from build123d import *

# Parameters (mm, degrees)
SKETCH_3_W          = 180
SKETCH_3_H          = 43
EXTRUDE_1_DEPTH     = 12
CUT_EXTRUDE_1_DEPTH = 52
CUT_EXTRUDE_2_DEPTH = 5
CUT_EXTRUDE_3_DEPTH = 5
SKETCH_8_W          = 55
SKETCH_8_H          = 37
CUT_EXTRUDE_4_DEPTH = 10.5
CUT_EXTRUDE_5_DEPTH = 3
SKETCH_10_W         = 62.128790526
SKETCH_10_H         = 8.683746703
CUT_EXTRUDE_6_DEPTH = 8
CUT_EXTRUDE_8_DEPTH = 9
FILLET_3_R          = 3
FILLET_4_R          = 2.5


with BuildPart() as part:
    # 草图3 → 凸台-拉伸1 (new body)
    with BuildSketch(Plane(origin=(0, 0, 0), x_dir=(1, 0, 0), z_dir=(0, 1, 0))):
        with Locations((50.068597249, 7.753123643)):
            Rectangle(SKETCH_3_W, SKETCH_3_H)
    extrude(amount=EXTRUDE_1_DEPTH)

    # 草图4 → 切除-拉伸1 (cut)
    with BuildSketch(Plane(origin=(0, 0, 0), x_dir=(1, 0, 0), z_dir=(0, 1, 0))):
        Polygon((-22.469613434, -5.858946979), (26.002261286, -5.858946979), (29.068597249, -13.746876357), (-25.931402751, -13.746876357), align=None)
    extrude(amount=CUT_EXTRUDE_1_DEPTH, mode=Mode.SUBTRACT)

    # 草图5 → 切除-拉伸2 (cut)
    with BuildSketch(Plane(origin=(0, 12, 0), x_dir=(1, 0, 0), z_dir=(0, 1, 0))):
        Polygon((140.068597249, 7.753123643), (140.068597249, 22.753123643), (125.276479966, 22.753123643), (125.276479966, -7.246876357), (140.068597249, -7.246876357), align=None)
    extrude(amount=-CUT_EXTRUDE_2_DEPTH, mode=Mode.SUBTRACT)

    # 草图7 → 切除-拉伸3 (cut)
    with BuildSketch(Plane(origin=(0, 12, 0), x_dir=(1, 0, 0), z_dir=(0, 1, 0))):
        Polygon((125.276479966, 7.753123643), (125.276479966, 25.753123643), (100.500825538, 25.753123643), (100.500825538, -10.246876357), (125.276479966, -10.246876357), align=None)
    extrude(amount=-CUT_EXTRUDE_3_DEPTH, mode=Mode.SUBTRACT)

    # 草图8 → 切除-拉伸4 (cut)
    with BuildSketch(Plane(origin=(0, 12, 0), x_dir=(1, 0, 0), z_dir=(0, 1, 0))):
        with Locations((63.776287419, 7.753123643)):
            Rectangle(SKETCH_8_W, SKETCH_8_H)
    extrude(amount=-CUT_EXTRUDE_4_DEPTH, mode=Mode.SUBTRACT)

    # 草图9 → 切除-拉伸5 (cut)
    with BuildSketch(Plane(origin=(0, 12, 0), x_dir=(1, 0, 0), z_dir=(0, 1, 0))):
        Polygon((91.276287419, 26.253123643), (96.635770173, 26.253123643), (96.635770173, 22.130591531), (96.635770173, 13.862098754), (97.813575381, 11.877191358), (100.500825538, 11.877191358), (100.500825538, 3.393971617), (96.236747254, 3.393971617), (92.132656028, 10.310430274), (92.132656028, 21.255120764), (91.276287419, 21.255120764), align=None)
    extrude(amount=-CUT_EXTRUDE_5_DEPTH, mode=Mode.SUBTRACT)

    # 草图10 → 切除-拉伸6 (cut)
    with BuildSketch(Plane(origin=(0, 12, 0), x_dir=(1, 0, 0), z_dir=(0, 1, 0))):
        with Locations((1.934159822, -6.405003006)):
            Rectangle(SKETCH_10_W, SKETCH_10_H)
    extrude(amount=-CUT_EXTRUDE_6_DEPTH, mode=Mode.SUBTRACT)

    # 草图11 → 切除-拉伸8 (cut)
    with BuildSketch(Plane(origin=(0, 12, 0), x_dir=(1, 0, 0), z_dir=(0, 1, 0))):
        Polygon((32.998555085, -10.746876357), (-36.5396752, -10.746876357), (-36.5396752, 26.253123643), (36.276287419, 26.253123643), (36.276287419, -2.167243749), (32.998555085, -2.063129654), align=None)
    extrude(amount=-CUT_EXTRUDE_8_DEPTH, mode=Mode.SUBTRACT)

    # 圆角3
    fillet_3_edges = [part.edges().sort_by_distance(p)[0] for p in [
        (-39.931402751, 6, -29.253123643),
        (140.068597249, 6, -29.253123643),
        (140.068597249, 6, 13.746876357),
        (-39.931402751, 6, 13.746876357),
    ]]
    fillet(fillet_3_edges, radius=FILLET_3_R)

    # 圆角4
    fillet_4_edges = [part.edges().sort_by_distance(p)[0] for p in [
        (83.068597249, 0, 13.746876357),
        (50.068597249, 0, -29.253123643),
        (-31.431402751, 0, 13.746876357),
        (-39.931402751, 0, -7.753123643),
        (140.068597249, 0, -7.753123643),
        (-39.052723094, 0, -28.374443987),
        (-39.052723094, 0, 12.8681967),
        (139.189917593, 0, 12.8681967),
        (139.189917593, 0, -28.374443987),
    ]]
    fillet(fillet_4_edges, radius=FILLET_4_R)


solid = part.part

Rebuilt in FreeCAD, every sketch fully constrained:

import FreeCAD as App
import Part
import Sketcher

V = App.Vector


def edges_at(feature, points):
    """Names of the edges that pass closest to the given points."""
    edges = feature.Shape.Edges
    near = lambda p: min(range(len(edges)), key=lambda i: edges[i].distToShape(Part.Vertex(*p))[0])
    return sorted({f"Edge{near(p) + 1}" for p in points})


def add_polygon(sketch, points):
    """Adds a closed chain of lines whose ends are joined by coincident constraints."""
    first, n = sketch.GeometryCount, len(points)
    for a, b in zip(points, points[1:] + points[:1]):
        sketch.addGeometry(Part.LineSegment(App.Vector(*a, 0), App.Vector(*b, 0)), False)
    for i in range(n):
        sketch.addConstraint(Sketcher.Constraint("Coincident", first + i, 2, first + (i + 1) % n, 1))

doc = App.newDocument("Part")
body = doc.addObject("PartDesign::Body", "Body")

sketch1 = body.newObject("Sketcher::SketchObject", "Sketch")
sketch1.AttachmentSupport = (doc.getObject("XZ_Plane"), [""])
sketch1.MapMode = "FlatFace"
add_polygon(sketch1, [(-39.931403, -29.253124), (-39.931403, 13.746876), (140.068597, 13.746876), (140.068597, -29.253124)])
sketch1.addConstraint([
    Sketcher.Constraint("Vertical", 0),
    Sketcher.Constraint("Horizontal", 1),
    Sketcher.Constraint("Vertical", 2),
    Sketcher.Constraint("Horizontal", 3),
    Sketcher.Constraint("DistanceX", 1, 1, 1, 2, 180.0),
    Sketcher.Constraint("DistanceY", 0, 1, 0, 2, 43.0),
    Sketcher.Constraint("DistanceX", 0, 2, -1, 1, 39.931403),
    Sketcher.Constraint("DistanceY", -1, 1, 0, 2, 13.746876),
])
pad1 = body.newObject("PartDesign::Pad", "Pad")
pad1.Profile = sketch1
pad1.Length = 12
pad1.Reversed = True

sketch2 = body.newObject("Sketcher::SketchObject", "Sketch001")
sketch2.AttachmentSupport = (doc.getObject("XZ_Plane"), [""])
sketch2.MapMode = "FlatFace"
add_polygon(sketch2, [(26.002261, 5.858947), (-22.469613, 5.858947), (-25.931403, 13.746876), (29.068597, 13.746876)])
sketch2.addConstraint([
    Sketcher.Constraint("Horizontal", 0),
    Sketcher.Constraint("Horizontal", 2),
    Sketcher.Constraint("DistanceX", 2, 1, 2, 2, 55.0),
    Sketcher.Constraint("Distance", 1, 8.61414),
    Sketcher.Constraint("Distance", 3, 8.462969),
    Sketcher.Constraint("DistanceX", 0, 2, 0, 1, 48.471875),
    Sketcher.Constraint("DistanceX", -1, 1, 3, 2, 26.002261),
    Sketcher.Constraint("DistanceY", -1, 1, 0, 2, 5.858947),
])
pocket1 = body.newObject("PartDesign::Pocket", "Pocket")
pocket1.Profile = sketch2
pocket1.Length = 52

sketch3 = body.newObject("Sketcher::SketchObject", "Sketch002")
sketch3.AttachmentSupport = (doc.getObject("XZ_Plane"), [""])
sketch3.MapMode = "FlatFace"
sketch3.AttachmentOffset = App.Placement(V(0, 0, -12), App.Rotation())
add_polygon(sketch3, [(140.068597, -22.753124), (125.27648, -22.753124), (125.27648, 7.246876), (140.068597, 7.246876)])
sketch3.addConstraint([
    Sketcher.Constraint("Horizontal", 0),
    Sketcher.Constraint("Vertical", 1),
    Sketcher.Constraint("Horizontal", 2),
    Sketcher.Constraint("Vertical", 3),
    Sketcher.Constraint("DistanceY", 1, 1, 1, 2, 30.0),
    Sketcher.Constraint("DistanceX", 0, 2, 0, 1, 14.792117),
    Sketcher.Constraint("DistanceX", -1, 1, 0, 2, 125.27648),
    Sketcher.Constraint("DistanceY", 0, 2, -1, 1, 22.753124),
])
pocket2 = body.newObject("PartDesign::Pocket", "Pocket001")
pocket2.Profile = sketch3
pocket2.Length = 5
pocket2.Reversed = True

sketch4 = body.newObject("Sketcher::SketchObject", "Sketch003")
sketch4.AttachmentSupport = (doc.getObject("XZ_Plane"), [""])
sketch4.MapMode = "FlatFace"
sketch4.AttachmentOffset = App.Placement(V(0, 0, -12), App.Rotation())
add_polygon(sketch4, [(125.27648, -25.753124), (100.500826, -25.753124), (100.500826, 10.246876), (125.27648, 10.246876)])
sketch4.addConstraint([
    Sketcher.Constraint("Horizontal", 0),
    Sketcher.Constraint("Vertical", 1),
    Sketcher.Constraint("Horizontal", 2),
    Sketcher.Constraint("Vertical", 3),
    Sketcher.Constraint("DistanceY", 1, 1, 1, 2, 36.0),
    Sketcher.Constraint("DistanceX", 0, 2, 0, 1, 24.775654),
    Sketcher.Constraint("DistanceX", -1, 1, 2, 2, 125.27648),
    Sketcher.Constraint("DistanceY", 0, 2, -1, 1, 25.753124),
])
pocket3 = body.newObject("PartDesign::Pocket", "Pocket002")
pocket3.Profile = sketch4
pocket3.Length = 5
pocket3.Reversed = True

sketch5 = body.newObject("Sketcher::SketchObject", "Sketch004")
sketch5.AttachmentSupport = (doc.getObject("XZ_Plane"), [""])
sketch5.MapMode = "FlatFace"
sketch5.AttachmentOffset = App.Placement(V(0, 0, -12), App.Rotation())
add_polygon(sketch5, [(36.276287, -26.253124), (36.276287, 10.746876), (91.276287, 10.746876), (91.276287, -26.253124)])
sketch5.addConstraint([
    Sketcher.Constraint("Vertical", 0),
    Sketcher.Constraint("Horizontal", 1),
    Sketcher.Constraint("Vertical", 2),
    Sketcher.Constraint("Horizontal", 3),
    Sketcher.Constraint("DistanceX", 1, 1, 1, 2, 55.0),
    Sketcher.Constraint("DistanceY", 0, 1, 0, 2, 37.0),
    Sketcher.Constraint("DistanceX", -1, 1, 0, 2, 36.276287),
    Sketcher.Constraint("DistanceY", -1, 1, 0, 2, 10.746876),
])
pocket4 = body.newObject("PartDesign::Pocket", "Pocket003")
pocket4.Profile = sketch5
pocket4.Length = 10.5
pocket4.Reversed = True

sketch6 = body.newObject("Sketcher::SketchObject", "Sketch005")
sketch6.AttachmentSupport = (doc.getObject("XZ_Plane"), [""])
sketch6.MapMode = "FlatFace"
sketch6.AttachmentOffset = App.Placement(V(0, 0, -12), App.Rotation())
add_polygon(sketch6, [(96.63577, -26.253124), (91.276287, -26.253124), (91.276287, -21.255121), (92.132656, -21.255121), (92.132656, -10.31043), (96.236747, -3.393972), (100.500826, -3.393972), (100.500826, -11.877191), (97.813575, -11.877191), (96.63577, -13.862099)])
sketch6.addConstraint([
    Sketcher.Constraint("Horizontal", 0),
    Sketcher.Constraint("Vertical", 1),
    Sketcher.Constraint("Horizontal", 2),
    Sketcher.Constraint("Vertical", 3),
    Sketcher.Constraint("Horizontal", 5),
    Sketcher.Constraint("Vertical", 6),
    Sketcher.Constraint("Horizontal", 7),
    Sketcher.Constraint("Vertical", 9),
    Sketcher.Constraint("Parallel", 4, 8),
    Sketcher.Constraint("DistanceX", 2, 1, 2, 2, 0.856369),
    Sketcher.Constraint("DistanceX", 5, 1, 5, 2, 4.264078),
    Sketcher.Constraint("DistanceX", 7, 2, 7, 1, 2.68725),
    Sketcher.Constraint("DistanceY", 3, 1, 3, 2, 10.94469),
    Sketcher.Constraint("DistanceY", 6, 2, 6, 1, 8.48322),
    Sketcher.Constraint("DistanceY", 8, 2, -1, 1, 13.862099),
    Sketcher.Constraint("DistanceX", 0, 2, 0, 1, 5.359483),
    Sketcher.Constraint("DistanceY", 1, 1, 1, 2, 4.998003),
    Sketcher.Constraint("DistanceY", 9, 2, 9, 1, 12.391025),
    Sketcher.Constraint("DistanceY", 4, 2, -1, 1, 3.393972),
    Sketcher.Constraint("DistanceX", -1, 1, 8, 2, 96.63577),
])
pocket5 = body.newObject("PartDesign::Pocket", "Pocket004")
pocket5.Profile = sketch6
pocket5.Length = 3
pocket5.Reversed = True

sketch7 = body.newObject("Sketcher::SketchObject", "Sketch006")
sketch7.AttachmentSupport = (doc.getObject("XZ_Plane"), [""])
sketch7.MapMode = "FlatFace"
sketch7.AttachmentOffset = App.Placement(V(0, 0, -12), App.Rotation())
add_polygon(sketch7, [(-29.130235, 2.06313), (-29.130235, 10.746876), (32.998555, 10.746876), (32.998555, 2.06313)])
sketch7.addConstraint([
    Sketcher.Constraint("Vertical", 0),
    Sketcher.Constraint("Horizontal", 1),
    Sketcher.Constraint("Vertical", 2),
    Sketcher.Constraint("Horizontal", 3),
    Sketcher.Constraint("DistanceX", 1, 1, 1, 2, 62.128791),
    Sketcher.Constraint("DistanceY", 0, 1, 0, 2, 8.683747),
    Sketcher.Constraint("DistanceY", -1, 1, 2, 2, 2.06313),
    Sketcher.Constraint("DistanceX", 0, 2, -1, 1, 29.130235),
])
pocket6 = body.newObject("PartDesign::Pocket", "Pocket005")
pocket6.Profile = sketch7
pocket6.Length = 8
pocket6.Reversed = True

sketch8 = body.newObject("Sketcher::SketchObject", "Sketch007")
sketch8.AttachmentSupport = (doc.getObject("XZ_Plane"), [""])
sketch8.MapMode = "FlatFace"
sketch8.AttachmentOffset = App.Placement(V(0, 0, -12), App.Rotation())
add_polygon(sketch8, [(-36.539675, 10.746876), (32.998555, 10.746876), (32.998555, 2.06313), (36.276287, 2.167244), (36.276287, -26.253124), (-36.539675, -26.253124)])
sketch8.addConstraint([
    Sketcher.Constraint("Horizontal", 0),
    Sketcher.Constraint("Vertical", 1),
    Sketcher.Constraint("Vertical", 3),
    Sketcher.Constraint("Horizontal", 4),
    Sketcher.Constraint("Vertical", 5),
    Sketcher.Constraint("DistanceY", 5, 1, 5, 2, 37.0),
    Sketcher.Constraint("DistanceX", 0, 1, 0, 2, 69.53823),
    Sketcher.Constraint("DistanceX", 4, 2, 4, 1, 72.815963),
    Sketcher.Constraint("DistanceY", 1, 2, 1, 1, 8.683747),
    Sketcher.Constraint("DistanceY", 3, 2, 3, 1, 28.420367),
    Sketcher.Constraint("DistanceY", -1, 1, 1, 2, 2.06313),
    Sketcher.Constraint("DistanceX", -1, 1, 0, 2, 32.998555),
])
pocket7 = body.newObject("PartDesign::Pocket", "Pocket006")
pocket7.Profile = sketch8
pocket7.Length = 9
pocket7.Reversed = True
doc.recompute()

fillet = body.newObject("PartDesign::Fillet", "Fillet")
fillet.Base = (pocket7, edges_at(pocket7, [
    (-39.931, 6, -29.253),
    (140.069, 6, -29.253),
    (140.069, 6, 13.747),
    (-39.931, 6, 13.747),
]))
fillet.Radius = 3
doc.recompute()

fillet2 = body.newObject("PartDesign::Fillet", "Fillet001")
fillet2.Base = (fillet, edges_at(fillet, [
    (83.069, 0, 13.747),
    (50.069, 0, -29.253),
    (-31.431, 0, 13.747),
    (-39.931, 0, -7.753),
    (140.069, 0, -7.753),
    (-39.053, 0, -28.374),
    (-39.053, 0, 12.868),
    (139.19, 0, 12.868),
    (139.19, 0, -28.374),
]))
fillet2.Radius = 2.5

doc.recompute()
